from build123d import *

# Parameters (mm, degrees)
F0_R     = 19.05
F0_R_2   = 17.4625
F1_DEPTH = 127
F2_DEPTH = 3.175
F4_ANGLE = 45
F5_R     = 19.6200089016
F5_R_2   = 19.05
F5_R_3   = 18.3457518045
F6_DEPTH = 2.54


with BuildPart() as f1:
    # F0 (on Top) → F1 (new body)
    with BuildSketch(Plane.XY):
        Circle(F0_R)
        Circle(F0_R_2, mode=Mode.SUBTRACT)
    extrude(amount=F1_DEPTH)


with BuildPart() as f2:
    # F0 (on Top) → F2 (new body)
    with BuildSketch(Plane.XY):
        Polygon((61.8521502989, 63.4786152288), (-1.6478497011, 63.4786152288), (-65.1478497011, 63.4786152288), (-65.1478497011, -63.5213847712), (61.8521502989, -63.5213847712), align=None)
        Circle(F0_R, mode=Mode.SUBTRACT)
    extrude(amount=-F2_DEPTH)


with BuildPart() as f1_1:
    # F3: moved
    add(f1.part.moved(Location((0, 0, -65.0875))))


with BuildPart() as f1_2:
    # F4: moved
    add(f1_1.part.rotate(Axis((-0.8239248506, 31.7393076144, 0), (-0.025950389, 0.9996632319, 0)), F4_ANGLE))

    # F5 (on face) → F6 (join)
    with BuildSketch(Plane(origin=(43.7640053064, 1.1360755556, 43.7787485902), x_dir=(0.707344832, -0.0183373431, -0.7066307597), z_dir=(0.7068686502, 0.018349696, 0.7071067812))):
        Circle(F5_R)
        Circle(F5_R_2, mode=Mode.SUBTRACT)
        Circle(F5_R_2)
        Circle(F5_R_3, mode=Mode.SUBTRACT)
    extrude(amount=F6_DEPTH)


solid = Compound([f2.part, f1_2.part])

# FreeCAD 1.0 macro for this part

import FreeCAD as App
import Part
import Sketcher
Q = App.Units.Quantity

doc = App.newDocument("Part")
body = doc.addObject("PartDesign::Body", "Body")

sketch1 = body.newObject("Sketcher::SketchObject", "Sketch")
sketch1.AttachmentSupport = (doc.getObject("XY_Plane"), [""])
sketch1.MapMode = "FlatFace"
sketch1.addGeometry([
    Part.Circle(App.Vector(0, 0, 0), App.Vector(0, 0, 1), 19.05),
    Part.Circle(App.Vector(0, 0, 0), App.Vector(0, 0, 1), 17.4625),
], False)
sketch1.addConstraint([
    Sketcher.Constraint("Coincident", 0, 3, -1, 1),
    Sketcher.Constraint("Coincident", 1, 3, -1, 1),
    Sketcher.Constraint("Diameter", 0, Q("1.5 in")),
    Sketcher.Constraint("Diameter", 1, Q("1.375 in")),
])
pad1 = body.newObject("PartDesign::Pad", "Pad")
pad1.Profile = sketch1
pad1.Length = Q("5 in")
body2 = doc.addObject("PartDesign::Body", "Body001")

sketch2 = body2.newObject("Sketcher::SketchObject", "Sketch001")
sketch2.AttachmentSupport = (doc.getObject("XY_Plane001"), [""])
sketch2.MapMode = "FlatFace"
sketch2.addGeometry([
    Part.LineSegment(App.Vector(61.85215, 63.478615, 0), App.Vector(-65.14785, 63.478615, 0)),
    Part.LineSegment(App.Vector(-65.14785, 63.478615, 0), App.Vector(-65.14785, -63.521385, 0)),
    Part.LineSegment(App.Vector(-65.14785, -63.521385, 0), App.Vector(61.85215, -63.521385, 0)),
    Part.LineSegment(App.Vector(61.85215, -63.521385, 0), App.Vector(61.85215, 63.478615, 0)),
    Part.Circle(App.Vector(0, 0, 0), App.Vector(0, 0, 1), 19.05),
], False)
sketch2.addConstraint([
    Sketcher.Constraint("Coincident", 0, 2, 1, 1),
    Sketcher.Constraint("Coincident", 1, 2, 2, 1),
    Sketcher.Constraint("Coincident", 2, 2, 3, 1),
    Sketcher.Constraint("Coincident", 3, 2, 0, 1),
    Sketcher.Constraint("Horizontal", 0),
    Sketcher.Constraint("Vertical", 1),
    Sketcher.Constraint("Horizontal", 2),
    Sketcher.Constraint("Vertical", 3),
    Sketcher.Constraint("Coincident", 4, 3, -1, 1),
    Sketcher.Constraint("Equal", 2, 1),
    Sketcher.Constraint("Diameter", 4, Q("1.5 in")),
    Sketcher.Constraint("DistanceX", 0, 2, 0, 1, Q("5 in")),
    Sketcher.Constraint("DistanceX", 0, 2, -1, 1, Q("65.14785 mm")),
    Sketcher.Constraint("DistanceY", -1, 1, 0, 2, Q("63.478615 mm")),
])
pad2 = body2.newObject("PartDesign::Pad", "Pad001")
pad2.Profile = sketch2
pad2.Length = Q("0.125 in")
pad2.Reversed = True
body3 = doc.addObject("PartDesign::Body", "Body002")
doc.recompute()

body.Placement = App.Placement(App.Vector(0, 0, -65.0875), App.Rotation(App.Vector(0, 0, 1), 0))
boolean = body3.newObject("PartDesign::Boolean", "Boolean")
boolean.Type = "Fuse"
boolean.addObjects([body])
body4 = doc.addObject("PartDesign::Body", "Body003")
doc.recompute()

body3.Placement = App.Placement(App.Vector(0, 0, 0), App.Rotation(App.Vector(-0.025950389, 0.999663232, 0), 45))
boolean2 = body4.newObject("PartDesign::Boolean", "Boolean001")
boolean2.Type = "Fuse"
boolean2.addObjects([body3])

sketch3 = body4.newObject("Sketcher::SketchObject", "Sketch002")
sketch3.Placement = App.Placement(App.Vector(43.764005, 1.136076, 43.778749), App.Rotation(App.Vector(0.707344832, -0.018337343, -0.70663076), App.Vector(0, 0.999663459, -0.025941656), App.Vector(0.70686865, 0.018349696, 0.707106781), "ZXY"))
sketch3.addGeometry([
    Part.Circle(App.Vector(0, 0, 0), App.Vector(0, 0, 1), 19.620009),
    Part.Circle(App.Vector(0, 0, 0), App.Vector(0, 0, 1), 18.345752),
], False)
sketch3.addConstraint([
    Sketcher.Constraint("Coincident", 0, 3, -1, 1),
    Sketcher.Constraint("Coincident", 1, 3, -1, 1),
    Sketcher.Constraint("Diameter", 0, Q("39.240018 mm")),
    Sketcher.Constraint("Diameter", 1, Q("36.691504 mm")),
])
pad3 = body4.newObject("PartDesign::Pad", "Pad002")
pad3.Profile = sketch3
pad3.Length = Q("0.1 in")

doc.recompute()
